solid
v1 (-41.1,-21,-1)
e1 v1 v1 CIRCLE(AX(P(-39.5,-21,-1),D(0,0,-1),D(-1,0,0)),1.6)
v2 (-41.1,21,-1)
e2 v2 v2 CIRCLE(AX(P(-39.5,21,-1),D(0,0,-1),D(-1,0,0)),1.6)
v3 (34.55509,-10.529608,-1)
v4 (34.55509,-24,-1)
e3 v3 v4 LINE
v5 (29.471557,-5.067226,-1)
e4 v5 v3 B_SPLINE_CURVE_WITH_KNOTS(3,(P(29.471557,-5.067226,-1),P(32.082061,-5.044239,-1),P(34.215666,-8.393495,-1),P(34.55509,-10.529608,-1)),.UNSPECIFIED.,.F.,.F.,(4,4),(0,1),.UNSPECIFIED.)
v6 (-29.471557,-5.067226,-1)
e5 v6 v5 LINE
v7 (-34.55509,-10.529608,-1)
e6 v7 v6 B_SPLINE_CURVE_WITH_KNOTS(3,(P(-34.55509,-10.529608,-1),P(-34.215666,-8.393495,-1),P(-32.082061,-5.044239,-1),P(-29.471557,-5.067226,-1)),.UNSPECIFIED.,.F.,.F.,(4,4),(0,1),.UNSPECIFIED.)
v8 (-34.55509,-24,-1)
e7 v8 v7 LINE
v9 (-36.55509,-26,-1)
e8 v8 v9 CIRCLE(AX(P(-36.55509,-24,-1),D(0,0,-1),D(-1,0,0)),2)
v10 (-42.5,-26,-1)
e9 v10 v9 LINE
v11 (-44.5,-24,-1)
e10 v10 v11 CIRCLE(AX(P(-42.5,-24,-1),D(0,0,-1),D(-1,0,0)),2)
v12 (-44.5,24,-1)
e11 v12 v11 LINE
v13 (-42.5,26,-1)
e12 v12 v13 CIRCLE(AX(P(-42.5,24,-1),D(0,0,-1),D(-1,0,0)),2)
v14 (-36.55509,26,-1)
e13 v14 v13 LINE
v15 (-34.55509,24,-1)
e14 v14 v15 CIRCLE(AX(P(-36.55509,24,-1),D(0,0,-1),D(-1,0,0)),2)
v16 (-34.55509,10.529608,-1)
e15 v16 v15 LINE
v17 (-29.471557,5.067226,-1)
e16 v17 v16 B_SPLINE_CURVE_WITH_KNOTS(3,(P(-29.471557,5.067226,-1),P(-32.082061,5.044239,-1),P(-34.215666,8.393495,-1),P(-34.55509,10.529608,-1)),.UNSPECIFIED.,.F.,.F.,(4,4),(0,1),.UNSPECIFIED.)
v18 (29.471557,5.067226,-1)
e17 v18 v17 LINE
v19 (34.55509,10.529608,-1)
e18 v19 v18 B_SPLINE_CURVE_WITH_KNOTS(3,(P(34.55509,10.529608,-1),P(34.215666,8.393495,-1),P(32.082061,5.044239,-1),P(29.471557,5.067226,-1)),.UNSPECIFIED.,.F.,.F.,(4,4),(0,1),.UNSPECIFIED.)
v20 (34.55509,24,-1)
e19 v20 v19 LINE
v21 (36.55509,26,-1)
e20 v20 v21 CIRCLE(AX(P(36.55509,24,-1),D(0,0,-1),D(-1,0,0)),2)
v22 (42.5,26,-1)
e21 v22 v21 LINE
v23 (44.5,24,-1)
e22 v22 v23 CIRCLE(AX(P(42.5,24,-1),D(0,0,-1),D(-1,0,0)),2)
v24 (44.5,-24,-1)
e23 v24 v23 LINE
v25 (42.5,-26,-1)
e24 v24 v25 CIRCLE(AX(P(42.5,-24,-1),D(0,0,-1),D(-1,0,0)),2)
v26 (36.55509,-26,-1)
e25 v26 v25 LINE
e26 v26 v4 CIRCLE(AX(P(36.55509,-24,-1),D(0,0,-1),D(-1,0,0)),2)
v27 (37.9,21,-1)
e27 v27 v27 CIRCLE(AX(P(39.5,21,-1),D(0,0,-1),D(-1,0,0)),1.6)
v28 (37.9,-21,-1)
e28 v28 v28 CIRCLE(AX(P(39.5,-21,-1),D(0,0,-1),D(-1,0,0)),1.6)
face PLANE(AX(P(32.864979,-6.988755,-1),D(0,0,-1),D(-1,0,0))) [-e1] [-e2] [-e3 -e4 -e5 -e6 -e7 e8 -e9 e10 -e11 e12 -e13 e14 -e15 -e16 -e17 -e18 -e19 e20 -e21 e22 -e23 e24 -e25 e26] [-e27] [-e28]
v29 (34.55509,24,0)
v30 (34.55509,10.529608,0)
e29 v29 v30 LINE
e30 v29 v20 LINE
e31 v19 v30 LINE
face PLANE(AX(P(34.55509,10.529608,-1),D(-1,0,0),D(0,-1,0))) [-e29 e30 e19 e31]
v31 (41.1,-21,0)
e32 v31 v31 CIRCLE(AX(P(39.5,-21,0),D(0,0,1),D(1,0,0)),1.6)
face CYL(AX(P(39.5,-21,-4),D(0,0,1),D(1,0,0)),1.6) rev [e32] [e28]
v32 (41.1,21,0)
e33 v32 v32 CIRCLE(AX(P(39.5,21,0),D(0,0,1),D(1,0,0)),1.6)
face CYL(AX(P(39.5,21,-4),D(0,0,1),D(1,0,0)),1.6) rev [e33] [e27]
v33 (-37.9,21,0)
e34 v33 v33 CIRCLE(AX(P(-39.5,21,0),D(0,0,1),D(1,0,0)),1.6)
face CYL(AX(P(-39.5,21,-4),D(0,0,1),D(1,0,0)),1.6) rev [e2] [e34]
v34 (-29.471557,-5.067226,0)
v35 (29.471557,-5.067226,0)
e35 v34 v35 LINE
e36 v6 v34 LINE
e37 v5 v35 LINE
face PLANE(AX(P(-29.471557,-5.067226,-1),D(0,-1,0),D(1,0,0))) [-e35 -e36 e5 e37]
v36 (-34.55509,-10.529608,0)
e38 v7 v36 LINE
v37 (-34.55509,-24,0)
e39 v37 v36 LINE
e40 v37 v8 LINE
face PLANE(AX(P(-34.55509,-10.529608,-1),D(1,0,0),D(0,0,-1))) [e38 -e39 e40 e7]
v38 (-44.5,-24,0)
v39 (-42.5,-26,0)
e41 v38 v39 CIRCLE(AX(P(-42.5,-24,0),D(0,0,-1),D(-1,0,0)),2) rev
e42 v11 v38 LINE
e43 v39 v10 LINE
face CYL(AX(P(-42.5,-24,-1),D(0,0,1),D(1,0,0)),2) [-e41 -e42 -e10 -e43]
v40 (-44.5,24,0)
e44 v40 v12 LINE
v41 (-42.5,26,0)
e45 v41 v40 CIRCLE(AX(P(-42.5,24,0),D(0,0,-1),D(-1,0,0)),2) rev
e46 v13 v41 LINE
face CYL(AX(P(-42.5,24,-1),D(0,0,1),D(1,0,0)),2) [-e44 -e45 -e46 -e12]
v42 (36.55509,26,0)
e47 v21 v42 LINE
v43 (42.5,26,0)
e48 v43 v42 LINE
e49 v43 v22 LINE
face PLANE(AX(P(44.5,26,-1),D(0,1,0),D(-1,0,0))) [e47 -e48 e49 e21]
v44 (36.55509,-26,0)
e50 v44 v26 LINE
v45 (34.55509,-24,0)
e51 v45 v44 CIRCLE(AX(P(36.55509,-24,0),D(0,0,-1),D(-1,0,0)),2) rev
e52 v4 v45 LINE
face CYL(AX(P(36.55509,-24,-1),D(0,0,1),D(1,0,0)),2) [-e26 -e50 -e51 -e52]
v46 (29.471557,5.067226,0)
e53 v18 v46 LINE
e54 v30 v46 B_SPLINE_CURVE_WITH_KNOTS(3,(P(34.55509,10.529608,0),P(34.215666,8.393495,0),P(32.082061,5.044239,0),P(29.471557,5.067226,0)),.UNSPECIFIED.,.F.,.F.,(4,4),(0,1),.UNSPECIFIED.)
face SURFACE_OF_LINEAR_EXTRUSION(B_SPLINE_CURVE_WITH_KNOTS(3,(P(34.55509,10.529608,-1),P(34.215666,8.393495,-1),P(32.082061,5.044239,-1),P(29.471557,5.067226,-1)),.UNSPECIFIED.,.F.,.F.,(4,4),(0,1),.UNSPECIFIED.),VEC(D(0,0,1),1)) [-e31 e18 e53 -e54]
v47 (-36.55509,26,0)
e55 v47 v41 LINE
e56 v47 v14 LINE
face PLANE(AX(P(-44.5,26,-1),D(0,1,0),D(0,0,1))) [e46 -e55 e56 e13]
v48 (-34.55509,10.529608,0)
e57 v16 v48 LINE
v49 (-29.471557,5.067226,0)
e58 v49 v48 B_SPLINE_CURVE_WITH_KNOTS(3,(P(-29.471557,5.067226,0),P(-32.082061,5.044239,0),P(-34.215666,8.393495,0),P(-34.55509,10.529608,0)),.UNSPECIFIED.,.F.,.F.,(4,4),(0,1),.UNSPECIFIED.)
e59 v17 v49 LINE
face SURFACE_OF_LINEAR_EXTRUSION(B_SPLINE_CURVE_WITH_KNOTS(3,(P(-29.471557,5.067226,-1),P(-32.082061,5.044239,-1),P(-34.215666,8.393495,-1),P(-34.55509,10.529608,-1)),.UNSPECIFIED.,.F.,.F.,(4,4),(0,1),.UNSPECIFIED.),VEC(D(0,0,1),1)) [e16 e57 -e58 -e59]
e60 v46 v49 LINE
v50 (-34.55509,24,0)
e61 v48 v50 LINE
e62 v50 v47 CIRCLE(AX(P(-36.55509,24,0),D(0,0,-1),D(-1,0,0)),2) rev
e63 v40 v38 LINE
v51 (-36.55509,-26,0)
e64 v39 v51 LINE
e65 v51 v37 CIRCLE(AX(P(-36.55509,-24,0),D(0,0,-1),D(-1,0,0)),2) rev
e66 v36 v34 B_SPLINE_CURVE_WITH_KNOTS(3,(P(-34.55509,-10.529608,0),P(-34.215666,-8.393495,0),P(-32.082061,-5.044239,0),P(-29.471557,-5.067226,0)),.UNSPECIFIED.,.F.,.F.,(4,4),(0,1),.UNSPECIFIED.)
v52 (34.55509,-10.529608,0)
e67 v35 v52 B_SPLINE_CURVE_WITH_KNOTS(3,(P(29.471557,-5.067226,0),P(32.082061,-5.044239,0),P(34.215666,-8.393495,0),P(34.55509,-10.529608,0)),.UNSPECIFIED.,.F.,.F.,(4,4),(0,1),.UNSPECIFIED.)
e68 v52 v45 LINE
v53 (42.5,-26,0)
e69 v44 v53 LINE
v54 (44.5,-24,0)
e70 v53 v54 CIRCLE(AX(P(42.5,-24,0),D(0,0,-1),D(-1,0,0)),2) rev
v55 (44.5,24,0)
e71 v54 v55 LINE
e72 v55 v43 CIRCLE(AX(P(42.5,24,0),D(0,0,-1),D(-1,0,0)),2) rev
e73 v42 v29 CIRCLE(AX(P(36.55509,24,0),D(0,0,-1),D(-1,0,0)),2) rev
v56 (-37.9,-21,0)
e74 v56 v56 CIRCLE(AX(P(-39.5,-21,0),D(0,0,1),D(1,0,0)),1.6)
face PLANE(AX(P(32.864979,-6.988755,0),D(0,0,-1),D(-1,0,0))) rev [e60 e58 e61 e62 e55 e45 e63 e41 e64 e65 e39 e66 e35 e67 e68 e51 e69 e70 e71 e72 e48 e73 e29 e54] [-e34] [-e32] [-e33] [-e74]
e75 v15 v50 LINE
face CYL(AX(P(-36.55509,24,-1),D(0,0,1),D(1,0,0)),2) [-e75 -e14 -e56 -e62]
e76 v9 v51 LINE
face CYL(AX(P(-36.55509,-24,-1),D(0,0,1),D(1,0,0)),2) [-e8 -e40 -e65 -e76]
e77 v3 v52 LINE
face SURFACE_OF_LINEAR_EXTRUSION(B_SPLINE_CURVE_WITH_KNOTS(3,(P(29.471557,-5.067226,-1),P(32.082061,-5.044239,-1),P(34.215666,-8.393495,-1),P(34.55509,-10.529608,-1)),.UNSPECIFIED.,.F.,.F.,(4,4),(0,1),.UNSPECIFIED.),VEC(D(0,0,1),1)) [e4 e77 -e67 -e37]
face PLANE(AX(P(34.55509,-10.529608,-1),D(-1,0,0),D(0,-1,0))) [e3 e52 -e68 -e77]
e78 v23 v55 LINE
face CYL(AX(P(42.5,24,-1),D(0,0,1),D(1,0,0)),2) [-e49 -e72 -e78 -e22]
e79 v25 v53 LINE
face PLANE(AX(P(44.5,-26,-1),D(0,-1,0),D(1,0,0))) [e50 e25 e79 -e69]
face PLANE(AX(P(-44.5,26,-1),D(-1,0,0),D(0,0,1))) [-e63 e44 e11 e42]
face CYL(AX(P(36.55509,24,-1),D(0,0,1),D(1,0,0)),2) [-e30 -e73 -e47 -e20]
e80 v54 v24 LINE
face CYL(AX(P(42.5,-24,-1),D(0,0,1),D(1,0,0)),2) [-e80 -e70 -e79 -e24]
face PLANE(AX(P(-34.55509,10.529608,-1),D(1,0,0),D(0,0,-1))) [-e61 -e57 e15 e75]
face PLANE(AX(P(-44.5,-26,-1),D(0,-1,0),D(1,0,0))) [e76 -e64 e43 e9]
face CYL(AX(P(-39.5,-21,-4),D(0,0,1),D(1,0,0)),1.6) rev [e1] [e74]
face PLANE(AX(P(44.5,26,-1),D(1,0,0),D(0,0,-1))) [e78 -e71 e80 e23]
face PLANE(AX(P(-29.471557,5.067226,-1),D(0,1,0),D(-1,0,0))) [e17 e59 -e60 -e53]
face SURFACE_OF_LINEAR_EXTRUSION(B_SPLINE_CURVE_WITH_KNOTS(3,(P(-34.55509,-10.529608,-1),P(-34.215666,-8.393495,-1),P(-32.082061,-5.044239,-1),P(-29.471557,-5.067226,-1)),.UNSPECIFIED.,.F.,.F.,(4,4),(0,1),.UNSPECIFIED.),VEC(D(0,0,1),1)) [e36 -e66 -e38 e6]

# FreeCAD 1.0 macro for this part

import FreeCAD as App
import Part
import Sketcher
Q = App.Units.Quantity


def edges_at(feature, points):
    """Names of the edges that pass closest to the given points."""
    edges = feature.Shape.Edges
    near = lambda p: min(range(len(edges)), key=lambda i: edges[i].distToShape(Part.Vertex(*p))[0])
    return sorted({f"Edge{near(p) + 1}" for p in points})

doc = App.newDocument("Part")
params = doc.addObject("Spreadsheet::Sheet", "Params")
for row, (alias, value) in enumerate([
    ("sketch1_height", "52 mm"),
    ("pad1_length", "1 mm"),
    ("sketch2_diameter", "3.2 mm"),
    ("pocket1_length", "4 mm"),
    ("fillet_radius", "2 mm"),
    ("fillet2_radius", "2 mm"),
    ("fillet3_radius", "2 mm"),
    ("fillet4_radius", "2 mm"),
    ("fillet5_radius", "2 mm"),
    ("fillet6_radius", "2 mm"),
    ("fillet7_radius", "2 mm"),
    ("fillet8_radius", "2 mm"),
], start=1):
    params.set(f"A{row}", alias)
    params.set(f"B{row}", "=" + value)
    params.setAlias(f"B{row}", alias)

body = doc.addObject("PartDesign::Body", "Body")

# Sketch on XY plane
sketch1 = body.newObject("Sketcher::SketchObject", "Sketch")
sketch1.AttachmentSupport = (doc.getObject("XY_Plane"), [""])
sketch1.MapMode = "FlatFace"
sketch1.addGeometry(Part.LineSegment(App.Vector(-34.55509, 10.529608, 0), App.Vector(-34.55509, 26, 0)), False)
sketch1.addGeometry(Part.LineSegment(App.Vector(-34.55509, 26, 0), App.Vector(-44.5, 26, 0)), False)
sketch1.addGeometry(Part.LineSegment(App.Vector(-44.5, 26, 0), App.Vector(-44.5, -26, 0)), False)
sketch1.addGeometry(Part.LineSegment(App.Vector(-44.5, -26, 0), App.Vector(-34.55509, -26, 0)), False)
sketch1.addGeometry(Part.LineSegment(App.Vector(-34.55509, -26, 0), App.Vector(-34.55509, -10.529608, 0)), False)
sketch1.addGeometry(Part.BSplineCurve([App.Vector(-34.55509, -10.529608, 0), App.Vector(-34.215666, -8.393495, 0), App.Vector(-32.082061, -5.044239, 0), App.Vector(-29.471557, -5.067226, 0)], [4, 4], [0, 1], False, 3, [1, 1, 1, 1], False), False)
sketch1.addGeometry(Part.LineSegment(App.Vector(-29.471557, -5.067226, 0), App.Vector(29.471557, -5.067226, 0)), False)
sketch1.addGeometry(Part.BSplineCurve([App.Vector(34.55509, -10.529608, 0), App.Vector(34.215666, -8.393495, 0), App.Vector(32.082061, -5.044239, 0), App.Vector(29.471557, -5.067226, 0)], [4, 4], [0, 1], False, 3, [1, 1, 1, 1], False), False)
sketch1.addGeometry(Part.LineSegment(App.Vector(34.55509, -10.529608, 0), App.Vector(34.55509, -26, 0)), False)
sketch1.addGeometry(Part.LineSegment(App.Vector(34.55509, -26, 0), App.Vector(44.5, -26, 0)), False)
sketch1.addGeometry(Part.LineSegment(App.Vector(44.5, -26, 0), App.Vector(44.5, 26, 0)), False)
sketch1.addGeometry(Part.LineSegment(App.Vector(44.5, 26, 0), App.Vector(34.55509, 26, 0)), False)
sketch1.addGeometry(Part.LineSegment(App.Vector(34.55509, 26, 0), App.Vector(34.55509, 10.529608, 0)), False)
sketch1.addGeometry(Part.BSplineCurve([App.Vector(34.55509, 10.529608, 0), App.Vector(34.215666, 8.393495, 0), App.Vector(32.082061, 5.044239, 0), App.Vector(29.471557, 5.067226, 0)], [4, 4], [0, 1], False, 3, [1, 1, 1, 1], False), False)
sketch1.addGeometry(Part.LineSegment(App.Vector(29.471557, 5.067226, 0), App.Vector(-29.471557, 5.067226, 0)), False)
sketch1.addGeometry(Part.BSplineCurve([App.Vector(-34.55509, 10.529608, 0), App.Vector(-34.215666, 8.393495, 0), App.Vector(-32.082061, 5.044239, 0), App.Vector(-29.471557, 5.067226, 0)], [4, 4], [0, 1], False, 3, [1, 1, 1, 1], False), False)
sketch1.addConstraint(Sketcher.Constraint("Block", 5))
sketch1.addConstraint(Sketcher.Constraint("Block", 7))
sketch1.addConstraint(Sketcher.Constraint("Block", 13))
sketch1.addConstraint(Sketcher.Constraint("Block", 15))
sketch1.addConstraint(Sketcher.Constraint("Coincident", 0, 2, 1, 1))
sketch1.addConstraint(Sketcher.Constraint("Coincident", 1, 2, 2, 1))
sketch1.addConstraint(Sketcher.Constraint("Coincident", 2, 2, 3, 1))
sketch1.addConstraint(Sketcher.Constraint("Coincident", 3, 2, 4, 1))
sketch1.addConstraint(Sketcher.Constraint("Coincident", 4, 2, 5, 1))
sketch1.addConstraint(Sketcher.Constraint("Coincident", 5, 2, 6, 1))
sketch1.addConstraint(Sketcher.Constraint("Coincident", 6, 2, 7, 2))
sketch1.addConstraint(Sketcher.Constraint("Coincident", 7, 1, 8, 1))
sketch1.addConstraint(Sketcher.Constraint("Coincident", 8, 2, 9, 1))
sketch1.addConstraint(Sketcher.Constraint("Coincident", 9, 2, 10, 1))
sketch1.addConstraint(Sketcher.Constraint("Coincident", 10, 2, 11, 1))
sketch1.addConstraint(Sketcher.Constraint("Coincident", 11, 2, 12, 1))
sketch1.addConstraint(Sketcher.Constraint("Coincident", 12, 2, 13, 1))
sketch1.addConstraint(Sketcher.Constraint("Coincident", 13, 2, 14, 1))
sketch1.addConstraint(Sketcher.Constraint("Coincident", 14, 2, 15, 2))
sketch1.addConstraint(Sketcher.Constraint("Coincident", 15, 1, 0, 1))
sketch1.addConstraint(Sketcher.Constraint("Vertical", 0))
sketch1.addConstraint(Sketcher.Constraint("Horizontal", 1))
sketch1.addConstraint(Sketcher.Constraint("Vertical", 2))
sketch1.addConstraint(Sketcher.Constraint("Horizontal", 3))
sketch1.addConstraint(Sketcher.Constraint("Vertical", 4))
sketch1.addConstraint(Sketcher.Constraint("Vertical", 8))
sketch1.addConstraint(Sketcher.Constraint("Horizontal", 9))
sketch1.addConstraint(Sketcher.Constraint("Vertical", 10))
sketch1.addConstraint(Sketcher.Constraint("Horizontal", 11))
sketch1.addConstraint(Sketcher.Constraint("Vertical", 12))
sketch1.addConstraint(Sketcher.Constraint("Symmetric", 1, 2, 9, 2, -1, 1))
sketch1.addConstraint(Sketcher.Constraint("Horizontal", 3, 2, 8, 2))
sketch1.addConstraint(Sketcher.Constraint("Horizontal", 1, 2, 10, 2))
sketch1.addConstraint(Sketcher.Constraint("DistanceY", 2, 2, 2, 1, Q("52 mm")))
sketch1.addConstraint(Sketcher.Constraint("DistanceX", 2, 2, 9, 2, Q("89 mm")))
sketch1.setExpression("Constraints[33]", "Params.sketch1_height")
pad1 = body.newObject("PartDesign::Pad", "Pad")
pad1.Profile = sketch1
pad1.setExpression("Length", "Params.pad1_length")
pad1.Reversed = True

# Sketch on XY plane
sketch2 = body.newObject("Sketcher::SketchObject", "Sketch001")
sketch2.AttachmentSupport = (doc.getObject("XY_Plane"), [""])
sketch2.MapMode = "FlatFace"
sketch2.addGeometry(Part.Circle(App.Vector(-39.5, 21, 0), App.Vector(0, 0, 1), 1.6), False)
sketch2.addGeometry(Part.Circle(App.Vector(39.5, 21, 0), App.Vector(0, 0, 1), 1.6), False)
sketch2.addGeometry(Part.Circle(App.Vector(-39.5, -21, 0), App.Vector(0, 0, 1), 1.6), False)
sketch2.addGeometry(Part.Circle(App.Vector(39.5, -21, 0), App.Vector(0, 0, 1), 1.6), False)
sketch2.addConstraint(Sketcher.Constraint("Equal", 0, 1))
sketch2.addConstraint(Sketcher.Constraint("Equal", 1, 2))
sketch2.addConstraint(Sketcher.Constraint("Equal", 2, 3))
sketch2.addConstraint(Sketcher.Constraint("Symmetric", 1, 3, 2, 3, -1, 1))
sketch2.addConstraint(Sketcher.Constraint("Symmetric", 0, 3, 3, 3, -1, 1))
sketch2.addConstraint(Sketcher.Constraint("Symmetric", 0, 3, 1, 3, -2))
sketch2.addConstraint(Sketcher.Constraint("Diameter", 0, Q("3.2 mm")))
sketch2.addConstraint(Sketcher.Constraint("DistanceY", -1, 1, 0, 3, Q("21 mm")))
sketch2.addConstraint(Sketcher.Constraint("DistanceX", 0, 3, 1, 3, Q("79 mm")))
sketch2.setExpression("Constraints[6]", "Params.sketch2_diameter")
pocket1 = body.newObject("PartDesign::Pocket", "Pocket")
pocket1.Profile = sketch2
pocket1.setExpression("Length", "Params.pocket1_length")
doc.recompute()

fillet = body.newObject("PartDesign::Fillet", "Fillet")
fillet.Base = (pocket1, edges_at(pocket1, [(-44.5, 26, -0.5)]))
fillet.setExpression("Radius", "Params.fillet_radius")
doc.recompute()

fillet2 = body.newObject("PartDesign::Fillet", "Fillet001")
fillet2.Base = (fillet, edges_at(fillet, [(-34.555, 26, -0.5)]))
fillet2.setExpression("Radius", "Params.fillet2_radius")
doc.recompute()

fillet3 = body.newObject("PartDesign::Fillet", "Fillet002")
fillet3.Base = (fillet2, edges_at(fillet2, [(-44.5, -26, -0.5)]))
fillet3.setExpression("Radius", "Params.fillet3_radius")
doc.recompute()

fillet4 = body.newObject("PartDesign::Fillet", "Fillet003")
fillet4.Base = (fillet3, edges_at(fillet3, [(-34.555, -26, -0.5)]))
fillet4.setExpression("Radius", "Params.fillet4_radius")
doc.recompute()

fillet5 = body.newObject("PartDesign::Fillet", "Fillet004")
fillet5.Base = (fillet4, edges_at(fillet4, [(34.555, -26, -0.5)]))
fillet5.setExpression("Radius", "Params.fillet5_radius")
doc.recompute()

fillet6 = body.newObject("PartDesign::Fillet", "Fillet005")
fillet6.Base = (fillet5, edges_at(fillet5, [(44.5, -26, -0.5)]))
fillet6.setExpression("Radius", "Params.fillet6_radius")
doc.recompute()

fillet7 = body.newObject("PartDesign::Fillet", "Fillet006")
fillet7.Base = (fillet6, edges_at(fillet6, [(34.555, 26, -0.5)]))
fillet7.setExpression("Radius", "Params.fillet7_radius")
doc.recompute()

fillet8 = body.newObject("PartDesign::Fillet", "Fillet007")
fillet8.Base = (fillet7, edges_at(fillet7, [(44.5, 26, -0.5)]))
fillet8.setExpression("Radius", "Params.fillet8_radius")

doc.recompute()
